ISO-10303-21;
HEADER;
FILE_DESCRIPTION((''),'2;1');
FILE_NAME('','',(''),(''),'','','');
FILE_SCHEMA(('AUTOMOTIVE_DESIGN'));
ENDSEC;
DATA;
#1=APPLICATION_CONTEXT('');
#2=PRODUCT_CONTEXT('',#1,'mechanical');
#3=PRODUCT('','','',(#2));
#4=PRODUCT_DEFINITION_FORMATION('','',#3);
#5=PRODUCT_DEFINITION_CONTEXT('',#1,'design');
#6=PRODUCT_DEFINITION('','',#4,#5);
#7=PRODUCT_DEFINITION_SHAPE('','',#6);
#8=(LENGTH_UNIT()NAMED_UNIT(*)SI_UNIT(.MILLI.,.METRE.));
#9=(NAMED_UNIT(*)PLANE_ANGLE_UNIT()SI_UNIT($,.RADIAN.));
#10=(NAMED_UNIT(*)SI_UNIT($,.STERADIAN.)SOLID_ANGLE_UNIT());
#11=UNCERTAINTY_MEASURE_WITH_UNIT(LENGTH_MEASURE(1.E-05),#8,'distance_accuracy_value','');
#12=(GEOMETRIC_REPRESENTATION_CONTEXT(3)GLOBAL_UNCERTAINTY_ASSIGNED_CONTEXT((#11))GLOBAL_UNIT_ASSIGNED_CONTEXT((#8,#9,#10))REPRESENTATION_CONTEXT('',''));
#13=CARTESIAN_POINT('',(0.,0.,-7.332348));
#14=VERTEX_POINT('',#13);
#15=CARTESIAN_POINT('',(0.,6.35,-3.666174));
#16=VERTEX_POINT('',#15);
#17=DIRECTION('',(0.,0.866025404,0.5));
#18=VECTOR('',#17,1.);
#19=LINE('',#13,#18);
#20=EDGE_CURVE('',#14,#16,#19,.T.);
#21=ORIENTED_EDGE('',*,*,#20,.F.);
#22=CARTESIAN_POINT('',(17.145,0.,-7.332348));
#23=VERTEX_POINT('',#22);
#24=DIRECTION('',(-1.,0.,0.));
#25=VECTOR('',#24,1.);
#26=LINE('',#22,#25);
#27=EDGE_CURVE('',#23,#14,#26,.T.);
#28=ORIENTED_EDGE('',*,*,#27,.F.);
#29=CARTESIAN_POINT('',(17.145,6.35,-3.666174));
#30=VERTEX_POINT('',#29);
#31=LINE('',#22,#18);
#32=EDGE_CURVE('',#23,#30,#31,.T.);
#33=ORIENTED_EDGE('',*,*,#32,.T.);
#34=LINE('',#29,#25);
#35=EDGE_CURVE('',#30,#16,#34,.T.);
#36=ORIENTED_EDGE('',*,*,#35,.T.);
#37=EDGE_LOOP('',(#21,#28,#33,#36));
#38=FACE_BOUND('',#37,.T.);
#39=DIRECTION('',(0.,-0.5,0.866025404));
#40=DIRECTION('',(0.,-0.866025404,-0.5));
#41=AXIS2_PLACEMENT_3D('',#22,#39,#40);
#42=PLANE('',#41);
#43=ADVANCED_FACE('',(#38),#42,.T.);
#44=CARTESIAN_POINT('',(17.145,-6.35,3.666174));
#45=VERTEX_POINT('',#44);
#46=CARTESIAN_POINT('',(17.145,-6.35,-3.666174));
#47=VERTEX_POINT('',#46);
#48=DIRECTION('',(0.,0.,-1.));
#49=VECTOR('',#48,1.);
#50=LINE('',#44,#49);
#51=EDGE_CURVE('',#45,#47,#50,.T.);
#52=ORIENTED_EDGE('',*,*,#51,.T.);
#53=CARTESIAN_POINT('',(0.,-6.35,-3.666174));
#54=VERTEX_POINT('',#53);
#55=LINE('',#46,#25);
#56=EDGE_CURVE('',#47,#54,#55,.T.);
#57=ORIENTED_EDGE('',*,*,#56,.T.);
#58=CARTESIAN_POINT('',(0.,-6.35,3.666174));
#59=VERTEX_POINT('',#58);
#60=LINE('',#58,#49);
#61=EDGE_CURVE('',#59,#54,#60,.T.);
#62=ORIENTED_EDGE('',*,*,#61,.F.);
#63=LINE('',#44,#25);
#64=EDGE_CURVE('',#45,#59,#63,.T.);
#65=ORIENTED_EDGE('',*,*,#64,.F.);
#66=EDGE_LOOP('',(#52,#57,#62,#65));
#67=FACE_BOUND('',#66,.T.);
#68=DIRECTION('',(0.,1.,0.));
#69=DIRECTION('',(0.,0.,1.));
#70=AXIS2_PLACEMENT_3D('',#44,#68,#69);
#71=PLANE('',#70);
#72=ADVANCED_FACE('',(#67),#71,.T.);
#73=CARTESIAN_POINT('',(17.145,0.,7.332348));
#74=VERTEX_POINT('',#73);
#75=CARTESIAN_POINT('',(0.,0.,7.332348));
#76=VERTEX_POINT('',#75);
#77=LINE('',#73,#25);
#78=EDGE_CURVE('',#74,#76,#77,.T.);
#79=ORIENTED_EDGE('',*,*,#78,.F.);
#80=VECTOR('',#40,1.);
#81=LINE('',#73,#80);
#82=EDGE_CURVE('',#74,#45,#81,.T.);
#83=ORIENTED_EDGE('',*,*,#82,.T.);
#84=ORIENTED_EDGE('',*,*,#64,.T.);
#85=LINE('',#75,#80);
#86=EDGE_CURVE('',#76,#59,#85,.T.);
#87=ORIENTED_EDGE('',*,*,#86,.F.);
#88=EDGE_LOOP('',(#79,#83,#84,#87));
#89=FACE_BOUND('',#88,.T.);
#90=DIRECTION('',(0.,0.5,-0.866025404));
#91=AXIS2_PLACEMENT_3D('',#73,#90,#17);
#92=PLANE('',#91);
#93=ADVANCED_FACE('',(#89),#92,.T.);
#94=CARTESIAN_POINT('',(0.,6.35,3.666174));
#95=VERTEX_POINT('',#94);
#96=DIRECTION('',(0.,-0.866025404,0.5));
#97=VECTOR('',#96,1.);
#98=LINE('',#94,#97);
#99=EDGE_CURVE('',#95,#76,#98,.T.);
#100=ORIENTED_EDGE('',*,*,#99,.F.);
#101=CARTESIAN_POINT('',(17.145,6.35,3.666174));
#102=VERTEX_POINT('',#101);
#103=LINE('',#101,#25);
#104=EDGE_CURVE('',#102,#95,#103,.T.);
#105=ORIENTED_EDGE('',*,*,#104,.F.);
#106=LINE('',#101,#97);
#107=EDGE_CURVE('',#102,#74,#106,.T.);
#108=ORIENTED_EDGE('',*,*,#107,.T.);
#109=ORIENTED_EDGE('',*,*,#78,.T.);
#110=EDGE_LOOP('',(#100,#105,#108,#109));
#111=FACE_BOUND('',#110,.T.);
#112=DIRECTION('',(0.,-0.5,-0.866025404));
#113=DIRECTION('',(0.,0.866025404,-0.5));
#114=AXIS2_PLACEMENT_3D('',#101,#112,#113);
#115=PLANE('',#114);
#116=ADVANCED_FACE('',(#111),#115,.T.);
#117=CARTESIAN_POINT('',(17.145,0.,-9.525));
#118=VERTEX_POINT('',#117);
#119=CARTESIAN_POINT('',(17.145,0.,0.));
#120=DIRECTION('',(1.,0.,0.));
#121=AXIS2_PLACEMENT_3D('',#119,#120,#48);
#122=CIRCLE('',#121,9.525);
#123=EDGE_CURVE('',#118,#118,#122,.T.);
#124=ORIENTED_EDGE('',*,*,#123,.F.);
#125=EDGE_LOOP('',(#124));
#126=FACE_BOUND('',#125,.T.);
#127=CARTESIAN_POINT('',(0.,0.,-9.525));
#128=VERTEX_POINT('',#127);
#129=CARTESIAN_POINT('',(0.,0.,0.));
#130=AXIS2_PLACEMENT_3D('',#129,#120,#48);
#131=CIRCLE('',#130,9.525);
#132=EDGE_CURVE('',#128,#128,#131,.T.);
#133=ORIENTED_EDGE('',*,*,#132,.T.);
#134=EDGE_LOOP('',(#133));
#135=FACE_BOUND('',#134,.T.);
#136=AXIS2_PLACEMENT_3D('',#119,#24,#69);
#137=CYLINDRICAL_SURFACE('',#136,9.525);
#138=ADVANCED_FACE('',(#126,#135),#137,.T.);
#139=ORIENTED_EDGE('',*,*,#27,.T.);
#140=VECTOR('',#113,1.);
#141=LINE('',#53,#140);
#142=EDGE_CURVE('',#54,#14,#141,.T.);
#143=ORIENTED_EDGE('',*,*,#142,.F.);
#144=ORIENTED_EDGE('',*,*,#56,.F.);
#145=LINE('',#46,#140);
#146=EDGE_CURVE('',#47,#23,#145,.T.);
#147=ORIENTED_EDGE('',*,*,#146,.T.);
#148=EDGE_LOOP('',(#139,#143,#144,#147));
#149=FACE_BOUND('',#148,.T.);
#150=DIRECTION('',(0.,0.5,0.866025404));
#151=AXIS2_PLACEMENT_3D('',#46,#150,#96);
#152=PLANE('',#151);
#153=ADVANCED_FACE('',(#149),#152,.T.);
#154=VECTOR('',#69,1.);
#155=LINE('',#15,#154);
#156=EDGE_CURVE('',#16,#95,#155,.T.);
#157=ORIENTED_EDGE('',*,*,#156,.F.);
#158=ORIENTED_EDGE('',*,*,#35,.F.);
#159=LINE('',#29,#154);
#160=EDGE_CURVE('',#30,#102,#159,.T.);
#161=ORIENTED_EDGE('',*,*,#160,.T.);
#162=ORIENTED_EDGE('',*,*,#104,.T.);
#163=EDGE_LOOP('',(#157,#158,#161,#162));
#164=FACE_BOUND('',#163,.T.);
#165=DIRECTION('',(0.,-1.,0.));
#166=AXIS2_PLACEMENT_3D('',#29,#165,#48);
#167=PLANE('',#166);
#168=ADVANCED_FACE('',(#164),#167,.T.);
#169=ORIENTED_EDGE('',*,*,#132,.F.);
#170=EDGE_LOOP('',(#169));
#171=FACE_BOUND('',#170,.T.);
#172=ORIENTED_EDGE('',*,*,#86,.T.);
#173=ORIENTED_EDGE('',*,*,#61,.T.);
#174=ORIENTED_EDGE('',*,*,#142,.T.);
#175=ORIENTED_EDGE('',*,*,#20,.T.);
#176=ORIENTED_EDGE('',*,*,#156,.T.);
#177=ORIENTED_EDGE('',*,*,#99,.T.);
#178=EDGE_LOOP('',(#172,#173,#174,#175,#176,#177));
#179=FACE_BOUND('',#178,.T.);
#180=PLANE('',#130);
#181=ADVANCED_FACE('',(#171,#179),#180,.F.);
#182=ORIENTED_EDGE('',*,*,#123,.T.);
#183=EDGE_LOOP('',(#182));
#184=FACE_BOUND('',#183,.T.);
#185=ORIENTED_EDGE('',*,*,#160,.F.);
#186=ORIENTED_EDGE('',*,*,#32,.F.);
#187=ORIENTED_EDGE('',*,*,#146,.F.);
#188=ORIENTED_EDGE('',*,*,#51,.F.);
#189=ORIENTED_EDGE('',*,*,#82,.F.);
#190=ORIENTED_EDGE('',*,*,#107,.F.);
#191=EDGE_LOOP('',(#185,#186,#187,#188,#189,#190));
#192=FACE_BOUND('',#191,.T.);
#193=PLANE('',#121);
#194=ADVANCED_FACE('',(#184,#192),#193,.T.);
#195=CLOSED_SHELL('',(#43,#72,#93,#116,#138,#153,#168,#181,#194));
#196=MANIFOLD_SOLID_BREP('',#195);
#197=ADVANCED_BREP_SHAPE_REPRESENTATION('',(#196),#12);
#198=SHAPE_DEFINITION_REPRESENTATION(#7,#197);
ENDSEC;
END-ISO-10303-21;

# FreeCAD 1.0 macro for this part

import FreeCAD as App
import Part
import Sketcher
from FreeCAD import Vector
Q = App.Units.Quantity


def add_polygon(sketch, points):
    """Adds a closed chain of lines whose ends are joined by coincident constraints."""
    first, n = sketch.GeometryCount, len(points)
    for a, b in zip(points, points[1:] + points[:1]):
        sketch.addGeometry(Part.LineSegment(App.Vector(*a, 0), App.Vector(*b, 0)), False)
    for i in range(n):
        sketch.addConstraint(Sketcher.Constraint("Coincident", first + i, 2, first + (i + 1) % n, 1))

doc = App.newDocument("Part")
body = doc.addObject("PartDesign::Body", "Body")

sketch1 = body.newObject("Sketcher::SketchObject", "Sketch")
sketch1.AttachmentSupport = (doc.getObject("YZ_Plane"), [""])
sketch1.MapMode = "FlatFace"
sketch1.addGeometry(Part.Circle(Vector(0, 0, 0), Vector(0, 0, 1), 10), False)
add_polygon(sketch1, [(6, -4), (0, -7), (-6, -4), (-6, 4), (0, 7), (6, 4)])
sketch1.addConstraint([
    Sketcher.Constraint("Vertical", 3),
    Sketcher.Constraint("Vertical", 6),
    Sketcher.Constraint("Coincident", 0, 3, -1, 1),
    Sketcher.Constraint("Symmetric", 1, 2, 4, 2, -1, 1),
    Sketcher.Constraint("Symmetric", 2, 2, 5, 2, -1, 1),
    Sketcher.Constraint("PointOnObject", 1, 2, -2),
    Sketcher.Constraint("Parallel", 1, 4),
    Sketcher.Constraint("Horizontal", 3, 2, 5, 2),
    Sketcher.Constraint("Diameter", 0, Q("0.75 in")),
    Sketcher.Constraint("Angle", 1, Q("-150 deg")),
    Sketcher.Constraint("DistanceX", 3, 2, 5, 2, Q("0.5 in")),
    Sketcher.Constraint("DistanceY", 3, 1, 3, 2, Q("7.332348 mm")),
])
pad1 = body.newObject("PartDesign::Pad", "Pad")
pad1.Profile = sketch1
pad1.Length = Q("0.675 in")

doc.recompute()
